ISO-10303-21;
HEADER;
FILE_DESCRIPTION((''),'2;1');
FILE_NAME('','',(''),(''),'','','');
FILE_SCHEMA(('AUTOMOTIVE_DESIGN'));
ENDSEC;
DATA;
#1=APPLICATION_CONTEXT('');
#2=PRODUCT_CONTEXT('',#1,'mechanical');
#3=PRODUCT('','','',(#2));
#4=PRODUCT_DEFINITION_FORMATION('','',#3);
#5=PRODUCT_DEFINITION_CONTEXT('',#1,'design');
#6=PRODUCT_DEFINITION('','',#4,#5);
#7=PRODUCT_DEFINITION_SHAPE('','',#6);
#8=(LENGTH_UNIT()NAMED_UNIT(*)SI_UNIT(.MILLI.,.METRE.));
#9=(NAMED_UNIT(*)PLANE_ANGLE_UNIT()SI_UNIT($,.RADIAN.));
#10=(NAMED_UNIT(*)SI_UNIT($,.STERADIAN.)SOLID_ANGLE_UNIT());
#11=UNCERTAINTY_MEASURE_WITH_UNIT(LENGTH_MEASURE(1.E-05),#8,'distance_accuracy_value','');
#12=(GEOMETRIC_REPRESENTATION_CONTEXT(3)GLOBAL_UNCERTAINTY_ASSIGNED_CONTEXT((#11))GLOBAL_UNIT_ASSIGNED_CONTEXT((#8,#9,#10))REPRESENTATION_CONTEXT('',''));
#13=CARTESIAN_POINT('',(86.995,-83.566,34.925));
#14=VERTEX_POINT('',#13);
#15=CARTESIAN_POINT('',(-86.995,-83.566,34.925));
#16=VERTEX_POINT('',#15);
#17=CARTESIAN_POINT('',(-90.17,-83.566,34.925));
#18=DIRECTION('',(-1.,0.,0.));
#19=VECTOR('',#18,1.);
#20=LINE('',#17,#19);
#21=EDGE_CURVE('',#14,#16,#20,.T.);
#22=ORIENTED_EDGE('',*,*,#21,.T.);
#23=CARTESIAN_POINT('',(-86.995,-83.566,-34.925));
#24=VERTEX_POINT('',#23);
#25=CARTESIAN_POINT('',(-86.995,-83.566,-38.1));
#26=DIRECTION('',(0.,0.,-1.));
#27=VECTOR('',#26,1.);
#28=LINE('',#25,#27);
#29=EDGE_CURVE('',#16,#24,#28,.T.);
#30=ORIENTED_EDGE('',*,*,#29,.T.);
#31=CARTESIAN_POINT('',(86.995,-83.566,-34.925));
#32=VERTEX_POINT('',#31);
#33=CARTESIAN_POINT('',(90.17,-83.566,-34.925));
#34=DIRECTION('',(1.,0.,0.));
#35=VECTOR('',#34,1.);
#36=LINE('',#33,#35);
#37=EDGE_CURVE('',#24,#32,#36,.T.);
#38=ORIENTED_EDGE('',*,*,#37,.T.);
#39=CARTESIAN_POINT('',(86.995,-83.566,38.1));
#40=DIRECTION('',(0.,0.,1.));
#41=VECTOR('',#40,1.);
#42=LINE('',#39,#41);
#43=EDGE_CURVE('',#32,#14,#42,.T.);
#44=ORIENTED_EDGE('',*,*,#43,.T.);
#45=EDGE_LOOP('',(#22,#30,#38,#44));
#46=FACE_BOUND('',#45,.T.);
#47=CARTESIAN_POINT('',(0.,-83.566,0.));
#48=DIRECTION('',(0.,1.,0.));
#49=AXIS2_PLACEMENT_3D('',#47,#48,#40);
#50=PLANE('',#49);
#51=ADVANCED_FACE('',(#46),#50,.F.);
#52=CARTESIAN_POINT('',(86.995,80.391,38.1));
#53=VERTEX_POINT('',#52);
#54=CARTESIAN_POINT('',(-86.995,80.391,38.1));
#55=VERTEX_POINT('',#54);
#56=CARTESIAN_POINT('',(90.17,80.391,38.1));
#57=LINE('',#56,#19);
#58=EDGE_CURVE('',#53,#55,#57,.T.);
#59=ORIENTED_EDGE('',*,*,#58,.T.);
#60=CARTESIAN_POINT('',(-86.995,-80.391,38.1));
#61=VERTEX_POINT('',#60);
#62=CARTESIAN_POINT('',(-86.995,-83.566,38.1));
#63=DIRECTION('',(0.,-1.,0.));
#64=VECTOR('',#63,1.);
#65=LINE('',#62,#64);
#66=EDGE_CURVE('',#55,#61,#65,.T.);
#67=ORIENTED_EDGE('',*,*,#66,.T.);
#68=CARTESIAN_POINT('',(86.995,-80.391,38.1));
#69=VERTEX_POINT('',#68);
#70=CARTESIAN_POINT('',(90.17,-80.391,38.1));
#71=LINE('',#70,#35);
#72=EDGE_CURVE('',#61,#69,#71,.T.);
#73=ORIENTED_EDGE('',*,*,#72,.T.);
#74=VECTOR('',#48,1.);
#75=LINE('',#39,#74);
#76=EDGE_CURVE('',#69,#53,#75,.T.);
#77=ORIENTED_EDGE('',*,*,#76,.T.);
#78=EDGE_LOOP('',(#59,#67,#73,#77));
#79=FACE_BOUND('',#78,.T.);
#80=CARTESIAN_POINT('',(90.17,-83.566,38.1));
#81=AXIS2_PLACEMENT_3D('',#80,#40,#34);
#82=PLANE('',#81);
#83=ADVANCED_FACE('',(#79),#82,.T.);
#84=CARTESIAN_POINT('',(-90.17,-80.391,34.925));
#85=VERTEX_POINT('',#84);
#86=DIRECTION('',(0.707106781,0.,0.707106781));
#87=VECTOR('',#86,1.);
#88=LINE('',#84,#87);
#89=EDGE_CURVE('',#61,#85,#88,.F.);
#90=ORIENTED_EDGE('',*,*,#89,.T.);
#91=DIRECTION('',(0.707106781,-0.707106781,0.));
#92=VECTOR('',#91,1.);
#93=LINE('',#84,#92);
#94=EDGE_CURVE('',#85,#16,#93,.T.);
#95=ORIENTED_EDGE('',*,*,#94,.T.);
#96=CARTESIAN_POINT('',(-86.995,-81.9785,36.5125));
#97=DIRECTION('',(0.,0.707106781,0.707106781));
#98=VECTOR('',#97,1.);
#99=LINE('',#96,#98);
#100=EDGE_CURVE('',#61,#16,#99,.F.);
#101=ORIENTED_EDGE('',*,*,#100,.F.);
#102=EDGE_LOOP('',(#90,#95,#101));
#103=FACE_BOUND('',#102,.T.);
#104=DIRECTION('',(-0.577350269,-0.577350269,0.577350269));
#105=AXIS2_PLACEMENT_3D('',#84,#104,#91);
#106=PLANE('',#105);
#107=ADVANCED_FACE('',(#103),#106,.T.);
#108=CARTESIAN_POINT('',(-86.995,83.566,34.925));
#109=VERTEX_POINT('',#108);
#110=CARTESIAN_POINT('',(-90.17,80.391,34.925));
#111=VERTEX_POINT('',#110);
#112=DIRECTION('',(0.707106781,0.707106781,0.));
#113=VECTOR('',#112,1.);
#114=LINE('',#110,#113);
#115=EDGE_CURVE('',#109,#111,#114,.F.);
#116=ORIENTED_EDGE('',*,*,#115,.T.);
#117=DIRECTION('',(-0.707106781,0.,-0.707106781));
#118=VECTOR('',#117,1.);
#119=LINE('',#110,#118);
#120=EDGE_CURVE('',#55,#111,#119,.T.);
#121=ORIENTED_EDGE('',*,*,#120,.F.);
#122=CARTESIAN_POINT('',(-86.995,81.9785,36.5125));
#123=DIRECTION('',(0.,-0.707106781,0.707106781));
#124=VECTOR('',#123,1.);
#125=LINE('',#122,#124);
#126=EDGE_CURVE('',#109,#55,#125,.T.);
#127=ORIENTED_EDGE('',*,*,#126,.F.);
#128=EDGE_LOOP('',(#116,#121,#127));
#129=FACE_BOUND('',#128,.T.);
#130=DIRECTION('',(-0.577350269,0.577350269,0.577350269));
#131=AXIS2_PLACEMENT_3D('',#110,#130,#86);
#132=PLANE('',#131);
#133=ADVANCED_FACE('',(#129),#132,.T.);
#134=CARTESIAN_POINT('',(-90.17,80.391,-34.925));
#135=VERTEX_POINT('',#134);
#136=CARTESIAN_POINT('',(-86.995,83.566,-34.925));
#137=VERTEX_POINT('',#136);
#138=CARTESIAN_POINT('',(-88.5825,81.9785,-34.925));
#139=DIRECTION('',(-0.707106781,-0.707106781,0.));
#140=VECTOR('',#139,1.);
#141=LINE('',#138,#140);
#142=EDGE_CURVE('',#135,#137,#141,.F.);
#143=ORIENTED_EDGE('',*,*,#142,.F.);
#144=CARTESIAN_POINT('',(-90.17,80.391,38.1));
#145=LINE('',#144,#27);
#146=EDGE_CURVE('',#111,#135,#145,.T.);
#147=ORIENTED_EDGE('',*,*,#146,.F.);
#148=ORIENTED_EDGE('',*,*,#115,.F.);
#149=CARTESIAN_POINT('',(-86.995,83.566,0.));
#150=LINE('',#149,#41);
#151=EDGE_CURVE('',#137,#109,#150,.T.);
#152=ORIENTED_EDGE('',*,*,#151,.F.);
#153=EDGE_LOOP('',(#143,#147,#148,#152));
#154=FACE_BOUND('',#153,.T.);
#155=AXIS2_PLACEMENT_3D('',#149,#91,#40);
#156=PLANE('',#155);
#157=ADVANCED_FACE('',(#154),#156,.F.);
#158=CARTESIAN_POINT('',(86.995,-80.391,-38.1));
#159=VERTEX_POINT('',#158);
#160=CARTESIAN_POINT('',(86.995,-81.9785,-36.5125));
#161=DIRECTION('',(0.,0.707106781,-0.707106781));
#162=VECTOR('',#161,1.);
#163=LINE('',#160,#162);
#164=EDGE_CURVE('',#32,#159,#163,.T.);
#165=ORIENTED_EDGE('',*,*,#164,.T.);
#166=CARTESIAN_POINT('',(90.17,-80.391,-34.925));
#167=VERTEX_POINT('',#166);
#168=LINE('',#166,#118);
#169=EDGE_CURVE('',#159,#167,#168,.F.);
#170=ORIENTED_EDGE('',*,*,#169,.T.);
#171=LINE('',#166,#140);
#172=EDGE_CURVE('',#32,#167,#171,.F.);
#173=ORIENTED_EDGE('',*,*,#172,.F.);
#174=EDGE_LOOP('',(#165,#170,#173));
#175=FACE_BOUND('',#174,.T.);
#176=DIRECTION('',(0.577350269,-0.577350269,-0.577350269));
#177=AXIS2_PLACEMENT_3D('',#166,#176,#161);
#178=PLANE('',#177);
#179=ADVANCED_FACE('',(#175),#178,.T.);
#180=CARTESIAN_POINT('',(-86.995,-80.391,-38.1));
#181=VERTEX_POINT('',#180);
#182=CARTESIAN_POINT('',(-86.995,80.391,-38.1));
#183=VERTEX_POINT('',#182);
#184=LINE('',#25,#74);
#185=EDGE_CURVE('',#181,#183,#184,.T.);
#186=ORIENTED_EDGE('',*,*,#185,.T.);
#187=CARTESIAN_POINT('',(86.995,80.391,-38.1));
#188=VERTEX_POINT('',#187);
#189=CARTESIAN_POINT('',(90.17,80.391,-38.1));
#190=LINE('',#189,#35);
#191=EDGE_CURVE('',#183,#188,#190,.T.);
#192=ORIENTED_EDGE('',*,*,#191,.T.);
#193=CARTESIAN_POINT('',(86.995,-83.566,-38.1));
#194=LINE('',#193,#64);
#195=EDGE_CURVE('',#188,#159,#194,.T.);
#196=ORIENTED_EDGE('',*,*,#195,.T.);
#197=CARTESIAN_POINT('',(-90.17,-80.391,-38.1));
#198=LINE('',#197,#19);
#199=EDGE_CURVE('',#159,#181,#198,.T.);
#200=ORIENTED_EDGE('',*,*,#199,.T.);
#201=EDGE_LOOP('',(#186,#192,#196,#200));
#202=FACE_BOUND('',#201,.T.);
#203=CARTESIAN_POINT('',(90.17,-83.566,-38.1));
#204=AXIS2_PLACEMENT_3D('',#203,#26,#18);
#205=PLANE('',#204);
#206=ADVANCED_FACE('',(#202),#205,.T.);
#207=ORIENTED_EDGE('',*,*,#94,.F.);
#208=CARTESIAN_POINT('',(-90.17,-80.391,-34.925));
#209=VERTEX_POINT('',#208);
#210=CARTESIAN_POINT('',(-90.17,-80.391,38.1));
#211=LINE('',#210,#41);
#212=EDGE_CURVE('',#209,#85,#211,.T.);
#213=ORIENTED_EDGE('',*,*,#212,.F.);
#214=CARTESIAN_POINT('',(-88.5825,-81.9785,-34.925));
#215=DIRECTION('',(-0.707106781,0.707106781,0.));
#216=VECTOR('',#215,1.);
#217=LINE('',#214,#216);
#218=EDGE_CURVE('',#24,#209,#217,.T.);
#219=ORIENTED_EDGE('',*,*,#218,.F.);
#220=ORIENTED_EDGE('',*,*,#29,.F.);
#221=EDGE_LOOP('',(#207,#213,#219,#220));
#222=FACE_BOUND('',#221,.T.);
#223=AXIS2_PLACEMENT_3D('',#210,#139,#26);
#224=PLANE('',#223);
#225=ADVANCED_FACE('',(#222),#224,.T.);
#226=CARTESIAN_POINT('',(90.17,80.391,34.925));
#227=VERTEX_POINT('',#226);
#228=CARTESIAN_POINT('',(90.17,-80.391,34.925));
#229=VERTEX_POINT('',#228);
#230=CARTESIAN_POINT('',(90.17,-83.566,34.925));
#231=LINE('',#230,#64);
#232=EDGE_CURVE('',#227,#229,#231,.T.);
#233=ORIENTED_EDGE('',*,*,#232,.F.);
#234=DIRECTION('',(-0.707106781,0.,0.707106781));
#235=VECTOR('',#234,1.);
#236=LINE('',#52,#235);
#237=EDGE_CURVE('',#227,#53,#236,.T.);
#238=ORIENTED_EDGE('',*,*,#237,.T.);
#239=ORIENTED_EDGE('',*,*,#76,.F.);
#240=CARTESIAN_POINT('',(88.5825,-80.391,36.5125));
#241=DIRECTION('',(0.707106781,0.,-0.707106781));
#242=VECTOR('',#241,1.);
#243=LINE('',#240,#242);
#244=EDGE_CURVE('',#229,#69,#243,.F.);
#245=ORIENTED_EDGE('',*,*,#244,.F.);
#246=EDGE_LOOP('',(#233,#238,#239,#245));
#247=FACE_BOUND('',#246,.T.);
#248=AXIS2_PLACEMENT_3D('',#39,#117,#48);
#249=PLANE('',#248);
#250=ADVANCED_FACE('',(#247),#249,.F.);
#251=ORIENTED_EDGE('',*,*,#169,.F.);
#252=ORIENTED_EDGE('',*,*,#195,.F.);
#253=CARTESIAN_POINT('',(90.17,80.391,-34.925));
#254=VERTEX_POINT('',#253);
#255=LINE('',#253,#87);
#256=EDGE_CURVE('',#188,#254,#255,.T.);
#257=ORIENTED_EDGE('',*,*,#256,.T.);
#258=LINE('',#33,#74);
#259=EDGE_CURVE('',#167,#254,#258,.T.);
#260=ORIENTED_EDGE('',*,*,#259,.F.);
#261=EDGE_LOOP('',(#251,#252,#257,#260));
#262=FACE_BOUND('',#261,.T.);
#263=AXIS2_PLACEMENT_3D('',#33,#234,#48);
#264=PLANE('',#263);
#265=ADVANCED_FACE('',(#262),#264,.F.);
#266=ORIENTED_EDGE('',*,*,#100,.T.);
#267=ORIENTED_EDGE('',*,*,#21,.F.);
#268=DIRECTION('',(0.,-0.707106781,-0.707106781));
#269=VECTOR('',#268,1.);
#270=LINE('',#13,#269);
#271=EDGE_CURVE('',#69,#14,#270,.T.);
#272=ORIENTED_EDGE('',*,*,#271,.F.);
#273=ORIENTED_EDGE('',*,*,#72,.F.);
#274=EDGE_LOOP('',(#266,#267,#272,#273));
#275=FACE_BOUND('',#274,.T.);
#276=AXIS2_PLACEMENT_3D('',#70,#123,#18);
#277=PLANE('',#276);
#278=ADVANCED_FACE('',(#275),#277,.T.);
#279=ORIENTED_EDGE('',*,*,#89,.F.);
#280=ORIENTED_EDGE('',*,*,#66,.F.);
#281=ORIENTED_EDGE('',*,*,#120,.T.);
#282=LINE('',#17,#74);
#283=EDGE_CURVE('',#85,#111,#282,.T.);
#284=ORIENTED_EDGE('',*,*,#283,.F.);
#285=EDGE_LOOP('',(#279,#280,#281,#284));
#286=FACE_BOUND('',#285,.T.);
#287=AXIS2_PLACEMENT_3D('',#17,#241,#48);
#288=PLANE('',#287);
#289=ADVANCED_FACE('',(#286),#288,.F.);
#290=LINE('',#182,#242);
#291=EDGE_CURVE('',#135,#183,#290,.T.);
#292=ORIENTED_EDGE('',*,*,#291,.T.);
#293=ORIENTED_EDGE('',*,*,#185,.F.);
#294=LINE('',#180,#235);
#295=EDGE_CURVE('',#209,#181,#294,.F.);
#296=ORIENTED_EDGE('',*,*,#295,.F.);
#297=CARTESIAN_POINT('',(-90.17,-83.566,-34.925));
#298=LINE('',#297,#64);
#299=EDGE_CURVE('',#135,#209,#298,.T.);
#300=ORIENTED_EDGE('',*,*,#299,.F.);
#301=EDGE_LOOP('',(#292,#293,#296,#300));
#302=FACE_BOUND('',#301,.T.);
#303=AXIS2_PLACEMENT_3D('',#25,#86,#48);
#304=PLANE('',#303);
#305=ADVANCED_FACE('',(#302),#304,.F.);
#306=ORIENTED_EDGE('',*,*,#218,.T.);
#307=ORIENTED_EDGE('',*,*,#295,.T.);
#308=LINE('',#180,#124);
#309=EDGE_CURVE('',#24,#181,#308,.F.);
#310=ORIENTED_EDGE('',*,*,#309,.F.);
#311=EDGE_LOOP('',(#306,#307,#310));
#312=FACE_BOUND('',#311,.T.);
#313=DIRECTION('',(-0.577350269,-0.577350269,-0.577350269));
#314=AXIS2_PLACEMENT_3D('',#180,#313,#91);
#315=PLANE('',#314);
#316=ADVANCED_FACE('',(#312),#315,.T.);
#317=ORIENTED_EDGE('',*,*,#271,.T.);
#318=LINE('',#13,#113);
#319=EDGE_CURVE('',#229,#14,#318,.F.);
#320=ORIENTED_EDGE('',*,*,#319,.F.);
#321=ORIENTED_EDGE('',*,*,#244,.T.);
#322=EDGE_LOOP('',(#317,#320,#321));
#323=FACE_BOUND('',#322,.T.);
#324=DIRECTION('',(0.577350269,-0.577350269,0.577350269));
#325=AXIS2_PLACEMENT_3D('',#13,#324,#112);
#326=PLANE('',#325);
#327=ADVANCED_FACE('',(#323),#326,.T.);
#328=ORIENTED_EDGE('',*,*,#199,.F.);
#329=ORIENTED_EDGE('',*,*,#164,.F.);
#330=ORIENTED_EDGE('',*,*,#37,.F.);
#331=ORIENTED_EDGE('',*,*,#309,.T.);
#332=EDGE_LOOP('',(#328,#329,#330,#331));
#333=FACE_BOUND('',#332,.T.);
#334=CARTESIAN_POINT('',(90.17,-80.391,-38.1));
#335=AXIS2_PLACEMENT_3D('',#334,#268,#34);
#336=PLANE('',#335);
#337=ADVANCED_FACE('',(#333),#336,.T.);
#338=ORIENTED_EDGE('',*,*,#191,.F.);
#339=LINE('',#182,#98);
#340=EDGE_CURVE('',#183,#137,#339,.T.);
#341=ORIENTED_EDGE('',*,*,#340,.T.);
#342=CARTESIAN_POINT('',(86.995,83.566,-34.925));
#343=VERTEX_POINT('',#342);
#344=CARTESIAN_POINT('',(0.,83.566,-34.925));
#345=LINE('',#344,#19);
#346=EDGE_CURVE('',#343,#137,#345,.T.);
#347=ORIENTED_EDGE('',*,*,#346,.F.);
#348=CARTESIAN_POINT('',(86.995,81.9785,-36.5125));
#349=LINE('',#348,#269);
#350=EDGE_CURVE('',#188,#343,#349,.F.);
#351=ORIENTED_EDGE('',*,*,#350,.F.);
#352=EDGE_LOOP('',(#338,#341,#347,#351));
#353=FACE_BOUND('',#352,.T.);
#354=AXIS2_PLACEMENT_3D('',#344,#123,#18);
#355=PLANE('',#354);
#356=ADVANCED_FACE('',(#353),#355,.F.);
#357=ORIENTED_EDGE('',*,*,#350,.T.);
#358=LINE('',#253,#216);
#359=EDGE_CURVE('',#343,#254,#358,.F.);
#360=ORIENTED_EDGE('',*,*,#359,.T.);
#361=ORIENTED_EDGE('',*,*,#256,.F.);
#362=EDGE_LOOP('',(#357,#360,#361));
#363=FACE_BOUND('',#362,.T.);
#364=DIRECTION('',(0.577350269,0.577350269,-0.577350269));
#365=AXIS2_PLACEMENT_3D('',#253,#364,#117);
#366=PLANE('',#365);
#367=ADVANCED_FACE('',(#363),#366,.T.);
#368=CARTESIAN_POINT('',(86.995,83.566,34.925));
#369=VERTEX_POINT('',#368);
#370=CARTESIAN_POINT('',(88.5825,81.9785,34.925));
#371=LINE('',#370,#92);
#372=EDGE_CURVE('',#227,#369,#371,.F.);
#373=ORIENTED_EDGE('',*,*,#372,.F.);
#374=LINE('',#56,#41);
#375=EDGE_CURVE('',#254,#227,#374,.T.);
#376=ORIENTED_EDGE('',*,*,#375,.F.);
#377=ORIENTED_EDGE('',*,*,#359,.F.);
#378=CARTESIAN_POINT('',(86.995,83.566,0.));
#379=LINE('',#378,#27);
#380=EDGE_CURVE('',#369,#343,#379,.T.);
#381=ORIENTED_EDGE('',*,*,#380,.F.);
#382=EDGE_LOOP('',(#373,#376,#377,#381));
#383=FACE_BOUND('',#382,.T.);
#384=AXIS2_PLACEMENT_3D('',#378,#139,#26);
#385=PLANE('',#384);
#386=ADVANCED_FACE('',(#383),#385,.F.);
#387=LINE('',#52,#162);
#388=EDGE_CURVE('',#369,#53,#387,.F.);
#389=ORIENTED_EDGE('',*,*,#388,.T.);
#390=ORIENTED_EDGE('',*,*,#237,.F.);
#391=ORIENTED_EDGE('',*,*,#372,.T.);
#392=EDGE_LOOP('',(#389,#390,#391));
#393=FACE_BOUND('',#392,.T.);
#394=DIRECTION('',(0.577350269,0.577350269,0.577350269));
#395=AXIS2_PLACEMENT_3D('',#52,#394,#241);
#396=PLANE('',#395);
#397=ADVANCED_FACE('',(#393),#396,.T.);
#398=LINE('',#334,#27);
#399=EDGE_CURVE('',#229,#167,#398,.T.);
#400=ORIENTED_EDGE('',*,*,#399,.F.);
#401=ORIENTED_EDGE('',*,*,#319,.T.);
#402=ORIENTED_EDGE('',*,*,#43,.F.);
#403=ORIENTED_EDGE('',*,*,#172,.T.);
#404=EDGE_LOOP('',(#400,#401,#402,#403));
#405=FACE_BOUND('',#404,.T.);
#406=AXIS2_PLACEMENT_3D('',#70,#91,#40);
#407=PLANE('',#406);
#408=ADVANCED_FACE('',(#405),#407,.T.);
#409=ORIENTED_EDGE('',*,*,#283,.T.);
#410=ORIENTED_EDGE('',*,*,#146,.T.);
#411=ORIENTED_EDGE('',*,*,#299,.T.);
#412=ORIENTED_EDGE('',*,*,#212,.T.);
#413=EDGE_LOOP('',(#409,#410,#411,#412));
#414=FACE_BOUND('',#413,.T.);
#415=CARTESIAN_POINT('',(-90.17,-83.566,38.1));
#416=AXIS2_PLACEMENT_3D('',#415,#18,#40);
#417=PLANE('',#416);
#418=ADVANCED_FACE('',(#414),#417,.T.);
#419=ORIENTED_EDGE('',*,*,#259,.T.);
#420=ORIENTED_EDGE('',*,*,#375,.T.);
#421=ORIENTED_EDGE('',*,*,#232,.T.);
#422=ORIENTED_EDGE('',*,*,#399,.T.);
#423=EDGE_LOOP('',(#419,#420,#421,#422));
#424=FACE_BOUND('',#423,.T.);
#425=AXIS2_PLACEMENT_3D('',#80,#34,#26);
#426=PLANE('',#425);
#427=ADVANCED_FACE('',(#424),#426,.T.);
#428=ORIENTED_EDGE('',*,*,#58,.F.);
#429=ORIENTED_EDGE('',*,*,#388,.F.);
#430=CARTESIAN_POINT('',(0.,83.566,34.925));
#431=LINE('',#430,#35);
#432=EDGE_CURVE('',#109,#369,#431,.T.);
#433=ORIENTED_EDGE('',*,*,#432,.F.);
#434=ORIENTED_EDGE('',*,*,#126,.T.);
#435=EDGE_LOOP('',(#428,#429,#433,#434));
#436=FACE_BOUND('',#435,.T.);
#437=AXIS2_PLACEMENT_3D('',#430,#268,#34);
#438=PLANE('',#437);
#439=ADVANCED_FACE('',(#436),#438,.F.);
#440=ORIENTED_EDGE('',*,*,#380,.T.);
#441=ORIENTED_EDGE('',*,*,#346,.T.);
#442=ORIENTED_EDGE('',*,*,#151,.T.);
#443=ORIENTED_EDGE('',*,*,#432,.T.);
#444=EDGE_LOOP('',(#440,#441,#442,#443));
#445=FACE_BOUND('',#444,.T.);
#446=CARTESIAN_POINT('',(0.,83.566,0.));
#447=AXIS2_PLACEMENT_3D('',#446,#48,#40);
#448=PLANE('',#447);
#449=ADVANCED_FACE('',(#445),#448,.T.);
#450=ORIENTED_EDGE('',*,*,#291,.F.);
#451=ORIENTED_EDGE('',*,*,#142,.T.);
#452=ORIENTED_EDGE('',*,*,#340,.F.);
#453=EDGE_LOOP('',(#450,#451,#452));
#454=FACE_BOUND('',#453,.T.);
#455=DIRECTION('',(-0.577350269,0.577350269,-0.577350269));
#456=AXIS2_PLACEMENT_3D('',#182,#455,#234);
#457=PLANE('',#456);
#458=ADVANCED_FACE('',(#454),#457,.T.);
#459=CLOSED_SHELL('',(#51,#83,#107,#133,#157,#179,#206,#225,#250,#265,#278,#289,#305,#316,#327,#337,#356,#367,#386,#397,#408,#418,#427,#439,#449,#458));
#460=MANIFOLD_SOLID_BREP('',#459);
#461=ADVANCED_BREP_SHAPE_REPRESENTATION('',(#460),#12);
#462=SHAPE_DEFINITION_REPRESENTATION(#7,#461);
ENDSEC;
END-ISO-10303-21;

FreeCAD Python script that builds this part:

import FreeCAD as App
import Part
import Sketcher

V = App.Vector
Q = App.Units.Quantity

doc = App.newDocument("Part")
body = doc.addObject("PartDesign::Body", "Body")

# Sketch on XZ plane
sketch1 = doc.addObject("Sketcher::SketchObject", "Sketch")
body.addObject(sketch1)
sketch1.AttachmentSupport = (doc.XZ_Plane, [""])
sketch1.MapMode = "FlatFace"
sketch1.addGeometry(Part.LineSegment(V(-90, -38, 0), V(-90, 38, 0)), False)
sketch1.addGeometry(Part.LineSegment(V(-90, 38, 0), V(90, 38, 0)), False)
sketch1.addGeometry(Part.LineSegment(V(90, 38, 0), V(90, -38, 0)), False)
sketch1.addGeometry(Part.LineSegment(V(90, -38, 0), V(-90, -38, 0)), False)
sketch1.addConstraint(Sketcher.Constraint("Coincident", 0, 2, 1, 1))
sketch1.addConstraint(Sketcher.Constraint("Coincident", 1, 2, 2, 1))
sketch1.addConstraint(Sketcher.Constraint("Coincident", 2, 2, 3, 1))
sketch1.addConstraint(Sketcher.Constraint("Coincident", 3, 2, 0, 1))
sketch1.addConstraint(Sketcher.Constraint("Vertical", 0))
sketch1.addConstraint(Sketcher.Constraint("Horizontal", 1))
sketch1.addConstraint(Sketcher.Constraint("Vertical", 2))
sketch1.addConstraint(Sketcher.Constraint("Horizontal", 3))
sketch1.addConstraint(Sketcher.Constraint("Symmetric", 0, 2, 2, 2, -1, 1))
sketch1.addConstraint(Sketcher.Constraint("DistanceY", 0, 1, 0, 2, Q("3 in")))
sketch1.addConstraint(Sketcher.Constraint("DistanceX", 1, 1, 1, 2, Q("7.1 in")))
pad1 = doc.addObject("PartDesign::Pad", "Pad")
body.addObject(pad1)
pad1.Profile = sketch1
pad1.Length = Q("6.58 in")
pad1.Midplane = True
doc.recompute()

chamfer = doc.addObject("PartDesign::Chamfer", "Chamfer")
body.addObject(chamfer)
chamfer.Base = (pad1, ["Edge1"])
chamfer.UseAllEdges = True
chamfer.Size = Q("0.125 in")

doc.recompute()
